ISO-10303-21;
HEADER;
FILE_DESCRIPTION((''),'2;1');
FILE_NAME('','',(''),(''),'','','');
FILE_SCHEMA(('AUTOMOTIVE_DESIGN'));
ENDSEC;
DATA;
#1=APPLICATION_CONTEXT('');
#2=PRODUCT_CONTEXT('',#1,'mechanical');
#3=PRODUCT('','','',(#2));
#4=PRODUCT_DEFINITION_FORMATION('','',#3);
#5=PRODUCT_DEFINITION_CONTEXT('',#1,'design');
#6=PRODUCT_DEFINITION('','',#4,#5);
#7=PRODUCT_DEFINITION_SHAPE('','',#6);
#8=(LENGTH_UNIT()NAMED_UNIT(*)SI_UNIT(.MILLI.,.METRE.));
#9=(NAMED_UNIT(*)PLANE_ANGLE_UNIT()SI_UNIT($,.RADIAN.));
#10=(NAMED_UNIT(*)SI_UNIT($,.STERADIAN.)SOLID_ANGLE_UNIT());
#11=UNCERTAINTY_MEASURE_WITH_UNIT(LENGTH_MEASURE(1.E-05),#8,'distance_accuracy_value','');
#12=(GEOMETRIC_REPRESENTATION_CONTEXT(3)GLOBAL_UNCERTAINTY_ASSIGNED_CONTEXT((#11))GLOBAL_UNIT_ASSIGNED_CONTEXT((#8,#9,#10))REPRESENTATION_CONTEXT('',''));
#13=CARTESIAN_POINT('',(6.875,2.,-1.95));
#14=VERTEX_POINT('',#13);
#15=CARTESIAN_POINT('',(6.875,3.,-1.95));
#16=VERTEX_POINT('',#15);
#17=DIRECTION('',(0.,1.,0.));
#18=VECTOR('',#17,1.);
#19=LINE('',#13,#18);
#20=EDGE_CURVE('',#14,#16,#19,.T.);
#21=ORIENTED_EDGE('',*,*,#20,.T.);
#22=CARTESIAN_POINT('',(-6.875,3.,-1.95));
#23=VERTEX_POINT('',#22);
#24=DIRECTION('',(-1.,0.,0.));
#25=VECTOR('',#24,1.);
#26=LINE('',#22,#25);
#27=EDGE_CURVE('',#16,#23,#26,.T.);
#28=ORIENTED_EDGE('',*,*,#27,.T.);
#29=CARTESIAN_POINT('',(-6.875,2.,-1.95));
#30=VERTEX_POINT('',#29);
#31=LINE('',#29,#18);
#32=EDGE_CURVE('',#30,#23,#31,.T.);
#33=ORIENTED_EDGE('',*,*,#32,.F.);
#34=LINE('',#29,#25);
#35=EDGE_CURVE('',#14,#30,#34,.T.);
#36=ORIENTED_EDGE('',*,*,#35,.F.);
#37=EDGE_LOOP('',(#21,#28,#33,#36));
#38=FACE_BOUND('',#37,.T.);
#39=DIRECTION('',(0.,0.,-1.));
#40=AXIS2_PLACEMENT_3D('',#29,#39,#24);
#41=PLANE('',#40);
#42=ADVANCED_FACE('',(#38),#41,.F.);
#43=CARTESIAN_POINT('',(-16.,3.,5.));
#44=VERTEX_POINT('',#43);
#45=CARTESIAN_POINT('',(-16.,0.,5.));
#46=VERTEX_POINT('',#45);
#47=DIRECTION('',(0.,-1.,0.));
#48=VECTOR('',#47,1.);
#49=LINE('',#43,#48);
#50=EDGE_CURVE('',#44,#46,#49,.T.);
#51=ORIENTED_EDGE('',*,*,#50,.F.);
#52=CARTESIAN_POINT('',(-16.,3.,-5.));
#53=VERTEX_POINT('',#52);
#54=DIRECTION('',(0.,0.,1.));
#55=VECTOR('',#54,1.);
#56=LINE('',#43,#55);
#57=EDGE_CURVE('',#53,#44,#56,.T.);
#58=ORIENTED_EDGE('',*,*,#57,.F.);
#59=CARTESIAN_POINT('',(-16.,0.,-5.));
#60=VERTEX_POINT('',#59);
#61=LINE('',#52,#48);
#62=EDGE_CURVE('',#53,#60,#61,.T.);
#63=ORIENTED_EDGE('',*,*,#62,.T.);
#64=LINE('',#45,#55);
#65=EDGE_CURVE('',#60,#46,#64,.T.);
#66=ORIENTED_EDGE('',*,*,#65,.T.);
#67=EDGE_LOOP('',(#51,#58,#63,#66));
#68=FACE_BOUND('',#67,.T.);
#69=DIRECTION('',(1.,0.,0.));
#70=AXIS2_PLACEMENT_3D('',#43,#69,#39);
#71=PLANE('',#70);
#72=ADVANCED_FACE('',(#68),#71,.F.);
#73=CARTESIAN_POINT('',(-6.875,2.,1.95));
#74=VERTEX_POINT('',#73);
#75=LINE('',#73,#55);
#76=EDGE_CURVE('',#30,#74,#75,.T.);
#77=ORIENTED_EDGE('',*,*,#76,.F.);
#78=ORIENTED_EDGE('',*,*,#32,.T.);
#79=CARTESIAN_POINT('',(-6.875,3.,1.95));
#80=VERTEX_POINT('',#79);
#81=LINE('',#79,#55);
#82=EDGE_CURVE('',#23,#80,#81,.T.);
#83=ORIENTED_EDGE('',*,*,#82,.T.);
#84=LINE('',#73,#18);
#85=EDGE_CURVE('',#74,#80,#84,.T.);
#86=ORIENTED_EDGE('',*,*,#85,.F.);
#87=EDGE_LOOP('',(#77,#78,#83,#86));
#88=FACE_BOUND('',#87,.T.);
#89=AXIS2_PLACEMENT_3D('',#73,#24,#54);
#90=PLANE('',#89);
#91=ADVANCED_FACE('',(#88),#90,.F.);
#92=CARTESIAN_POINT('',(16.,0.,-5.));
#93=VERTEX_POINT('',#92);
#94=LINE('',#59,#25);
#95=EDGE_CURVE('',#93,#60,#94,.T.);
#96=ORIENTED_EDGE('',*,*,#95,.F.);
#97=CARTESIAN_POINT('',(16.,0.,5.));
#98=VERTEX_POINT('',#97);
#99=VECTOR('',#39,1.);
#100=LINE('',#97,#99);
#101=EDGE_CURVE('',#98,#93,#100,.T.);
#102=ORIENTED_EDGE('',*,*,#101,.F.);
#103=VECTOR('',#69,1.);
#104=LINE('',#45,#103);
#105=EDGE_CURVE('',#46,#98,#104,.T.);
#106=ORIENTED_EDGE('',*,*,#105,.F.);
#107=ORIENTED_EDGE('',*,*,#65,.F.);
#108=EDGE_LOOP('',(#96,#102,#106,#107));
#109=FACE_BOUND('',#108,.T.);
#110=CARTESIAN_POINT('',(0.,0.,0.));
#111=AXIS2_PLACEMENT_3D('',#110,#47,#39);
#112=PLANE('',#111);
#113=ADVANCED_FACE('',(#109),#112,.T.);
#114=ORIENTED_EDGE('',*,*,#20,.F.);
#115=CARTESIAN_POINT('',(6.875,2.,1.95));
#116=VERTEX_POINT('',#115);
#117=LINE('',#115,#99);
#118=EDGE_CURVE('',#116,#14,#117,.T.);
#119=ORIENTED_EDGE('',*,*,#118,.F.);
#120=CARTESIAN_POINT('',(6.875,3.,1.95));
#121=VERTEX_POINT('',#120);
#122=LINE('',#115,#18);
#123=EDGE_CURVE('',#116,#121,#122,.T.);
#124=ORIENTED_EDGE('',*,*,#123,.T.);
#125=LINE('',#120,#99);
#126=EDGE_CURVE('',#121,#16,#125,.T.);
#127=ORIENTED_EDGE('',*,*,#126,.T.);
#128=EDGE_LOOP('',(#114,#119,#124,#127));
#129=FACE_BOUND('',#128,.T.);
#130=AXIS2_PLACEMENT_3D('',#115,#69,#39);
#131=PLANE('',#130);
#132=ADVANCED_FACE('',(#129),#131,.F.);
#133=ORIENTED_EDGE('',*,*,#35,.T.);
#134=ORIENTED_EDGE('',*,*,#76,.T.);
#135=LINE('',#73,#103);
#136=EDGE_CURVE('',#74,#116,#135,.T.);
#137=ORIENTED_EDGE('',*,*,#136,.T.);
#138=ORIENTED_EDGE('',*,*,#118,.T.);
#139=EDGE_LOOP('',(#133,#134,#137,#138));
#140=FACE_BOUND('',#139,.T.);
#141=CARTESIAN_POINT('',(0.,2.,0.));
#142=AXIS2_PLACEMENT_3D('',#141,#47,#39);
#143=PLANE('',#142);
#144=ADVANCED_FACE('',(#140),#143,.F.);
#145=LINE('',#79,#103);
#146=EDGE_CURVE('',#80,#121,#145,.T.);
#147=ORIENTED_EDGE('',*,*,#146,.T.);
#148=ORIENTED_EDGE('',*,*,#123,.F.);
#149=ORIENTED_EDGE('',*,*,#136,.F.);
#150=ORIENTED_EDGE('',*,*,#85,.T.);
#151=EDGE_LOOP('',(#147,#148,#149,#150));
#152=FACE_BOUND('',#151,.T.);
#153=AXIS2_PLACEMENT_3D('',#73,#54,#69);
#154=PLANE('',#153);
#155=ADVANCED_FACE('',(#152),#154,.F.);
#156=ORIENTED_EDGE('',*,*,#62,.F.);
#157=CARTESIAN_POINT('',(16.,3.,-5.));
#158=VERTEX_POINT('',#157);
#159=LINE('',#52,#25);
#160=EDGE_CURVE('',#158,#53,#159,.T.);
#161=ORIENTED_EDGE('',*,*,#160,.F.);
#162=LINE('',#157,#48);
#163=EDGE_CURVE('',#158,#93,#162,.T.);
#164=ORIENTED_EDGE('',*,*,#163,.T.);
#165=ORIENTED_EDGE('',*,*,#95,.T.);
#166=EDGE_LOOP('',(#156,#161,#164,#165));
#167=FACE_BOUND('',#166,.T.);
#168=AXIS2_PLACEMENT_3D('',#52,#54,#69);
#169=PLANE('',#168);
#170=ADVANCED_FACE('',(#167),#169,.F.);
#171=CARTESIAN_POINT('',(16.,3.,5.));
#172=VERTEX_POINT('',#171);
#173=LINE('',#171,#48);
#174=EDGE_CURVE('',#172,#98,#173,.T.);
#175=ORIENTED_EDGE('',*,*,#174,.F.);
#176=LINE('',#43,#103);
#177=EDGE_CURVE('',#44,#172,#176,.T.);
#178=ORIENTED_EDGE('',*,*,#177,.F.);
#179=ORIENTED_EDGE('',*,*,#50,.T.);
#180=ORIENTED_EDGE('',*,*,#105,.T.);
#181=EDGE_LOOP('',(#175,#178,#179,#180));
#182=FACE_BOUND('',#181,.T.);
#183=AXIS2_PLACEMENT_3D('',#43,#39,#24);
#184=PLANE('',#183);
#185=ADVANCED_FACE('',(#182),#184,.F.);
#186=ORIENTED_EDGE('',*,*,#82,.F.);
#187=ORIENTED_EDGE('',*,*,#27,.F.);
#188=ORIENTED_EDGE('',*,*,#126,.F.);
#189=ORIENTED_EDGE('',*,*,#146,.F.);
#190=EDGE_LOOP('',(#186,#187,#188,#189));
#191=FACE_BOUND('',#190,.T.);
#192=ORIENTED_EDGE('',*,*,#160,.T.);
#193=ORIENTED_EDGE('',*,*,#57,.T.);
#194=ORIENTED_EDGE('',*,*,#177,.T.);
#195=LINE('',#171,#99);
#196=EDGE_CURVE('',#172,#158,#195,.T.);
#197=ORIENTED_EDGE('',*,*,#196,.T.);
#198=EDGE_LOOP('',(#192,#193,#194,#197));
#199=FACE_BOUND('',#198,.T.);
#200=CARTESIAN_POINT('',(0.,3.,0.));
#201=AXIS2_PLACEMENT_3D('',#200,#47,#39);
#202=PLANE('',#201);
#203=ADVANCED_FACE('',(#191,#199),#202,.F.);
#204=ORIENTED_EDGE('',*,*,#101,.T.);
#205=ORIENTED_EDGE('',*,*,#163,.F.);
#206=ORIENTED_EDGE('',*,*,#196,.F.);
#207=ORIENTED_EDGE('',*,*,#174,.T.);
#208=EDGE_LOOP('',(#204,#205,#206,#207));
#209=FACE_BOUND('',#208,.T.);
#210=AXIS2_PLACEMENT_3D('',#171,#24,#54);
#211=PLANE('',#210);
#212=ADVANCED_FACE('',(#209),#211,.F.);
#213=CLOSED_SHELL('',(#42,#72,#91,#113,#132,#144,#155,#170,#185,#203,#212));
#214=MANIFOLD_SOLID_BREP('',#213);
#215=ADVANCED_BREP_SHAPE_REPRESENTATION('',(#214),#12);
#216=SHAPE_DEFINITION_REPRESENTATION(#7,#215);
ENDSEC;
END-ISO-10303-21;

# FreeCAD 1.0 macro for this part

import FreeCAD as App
import Part
import Sketcher
from FreeCAD import Vector
Q = App.Units.Quantity


def add_polygon(sketch, points):
    """Adds a closed chain of lines whose ends are joined by coincident constraints."""
    first, n = sketch.GeometryCount, len(points)
    for a, b in zip(points, points[1:] + points[:1]):
        sketch.addGeometry(Part.LineSegment(App.Vector(*a, 0), App.Vector(*b, 0)), False)
    for i in range(n):
        sketch.addConstraint(Sketcher.Constraint("Coincident", first + i, 2, first + (i + 1) % n, 1))

doc = App.newDocument("Part")
body = doc.addObject("PartDesign::Body", "Body")

# Sketch on XZ plane
sketch1 = doc.addObject("Sketcher::SketchObject", "Sketch")
body.addObject(sketch1)
sketch1.AttachmentSupport = (doc.XZ_Plane, [""])
sketch1.MapMode = "FlatFace"
add_polygon(sketch1, [(-16, -5), (-16, 5), (16, 5), (16, -5)])  # lines 0-3
sketch1.addConstraint([
    Sketcher.Constraint("Vertical", 0),
    Sketcher.Constraint("Horizontal", 1),
    Sketcher.Constraint("Vertical", 2),
    Sketcher.Constraint("Horizontal", 3),
    Sketcher.Constraint("Symmetric", 0, 2, 2, 2, -1, 1),
    Sketcher.Constraint("DistanceX", 1, 1, 1, 2, Q("32 mm")),
    Sketcher.Constraint("DistanceY", 0, 1, 0, 2, Q("10 mm")),
])
pad1 = doc.addObject("PartDesign::Pad", "Pad")
body.addObject(pad1)
pad1.Profile = sketch1
pad1.Length = 3
pad1.Reversed = True

# Sketch on XZ plane
sketch2 = doc.addObject("Sketcher::SketchObject", "Sketch001")
body.addObject(sketch2)
sketch2.AttachmentSupport = (doc.XZ_Plane, [""])
sketch2.MapMode = "FlatFace"
sketch2.AttachmentOffset = App.Placement(Vector(0, 0, -3), App.Rotation())
add_polygon(sketch2, [(-6.875, -1.95), (-6.875, 1.95), (6.875, 1.95), (6.875, -1.95)])  # lines 0-3
sketch2.addConstraint([
    Sketcher.Constraint("Vertical", 0),
    Sketcher.Constraint("Horizontal", 1),
    Sketcher.Constraint("Vertical", 2),
    Sketcher.Constraint("Horizontal", 3),
    Sketcher.Constraint("Symmetric", 0, 2, 2, 2, -1, 1),
    Sketcher.Constraint("DistanceY", 0, 1, 0, 2, Q("3.9 mm")),
    Sketcher.Constraint("DistanceX", 1, 1, 1, 2, Q("13.75 mm")),
])
pocket1 = doc.addObject("PartDesign::Pocket", "Pocket")
body.addObject(pocket1)
pocket1.Profile = sketch2
pocket1.Length = 1
pocket1.Reversed = True

doc.recompute()
